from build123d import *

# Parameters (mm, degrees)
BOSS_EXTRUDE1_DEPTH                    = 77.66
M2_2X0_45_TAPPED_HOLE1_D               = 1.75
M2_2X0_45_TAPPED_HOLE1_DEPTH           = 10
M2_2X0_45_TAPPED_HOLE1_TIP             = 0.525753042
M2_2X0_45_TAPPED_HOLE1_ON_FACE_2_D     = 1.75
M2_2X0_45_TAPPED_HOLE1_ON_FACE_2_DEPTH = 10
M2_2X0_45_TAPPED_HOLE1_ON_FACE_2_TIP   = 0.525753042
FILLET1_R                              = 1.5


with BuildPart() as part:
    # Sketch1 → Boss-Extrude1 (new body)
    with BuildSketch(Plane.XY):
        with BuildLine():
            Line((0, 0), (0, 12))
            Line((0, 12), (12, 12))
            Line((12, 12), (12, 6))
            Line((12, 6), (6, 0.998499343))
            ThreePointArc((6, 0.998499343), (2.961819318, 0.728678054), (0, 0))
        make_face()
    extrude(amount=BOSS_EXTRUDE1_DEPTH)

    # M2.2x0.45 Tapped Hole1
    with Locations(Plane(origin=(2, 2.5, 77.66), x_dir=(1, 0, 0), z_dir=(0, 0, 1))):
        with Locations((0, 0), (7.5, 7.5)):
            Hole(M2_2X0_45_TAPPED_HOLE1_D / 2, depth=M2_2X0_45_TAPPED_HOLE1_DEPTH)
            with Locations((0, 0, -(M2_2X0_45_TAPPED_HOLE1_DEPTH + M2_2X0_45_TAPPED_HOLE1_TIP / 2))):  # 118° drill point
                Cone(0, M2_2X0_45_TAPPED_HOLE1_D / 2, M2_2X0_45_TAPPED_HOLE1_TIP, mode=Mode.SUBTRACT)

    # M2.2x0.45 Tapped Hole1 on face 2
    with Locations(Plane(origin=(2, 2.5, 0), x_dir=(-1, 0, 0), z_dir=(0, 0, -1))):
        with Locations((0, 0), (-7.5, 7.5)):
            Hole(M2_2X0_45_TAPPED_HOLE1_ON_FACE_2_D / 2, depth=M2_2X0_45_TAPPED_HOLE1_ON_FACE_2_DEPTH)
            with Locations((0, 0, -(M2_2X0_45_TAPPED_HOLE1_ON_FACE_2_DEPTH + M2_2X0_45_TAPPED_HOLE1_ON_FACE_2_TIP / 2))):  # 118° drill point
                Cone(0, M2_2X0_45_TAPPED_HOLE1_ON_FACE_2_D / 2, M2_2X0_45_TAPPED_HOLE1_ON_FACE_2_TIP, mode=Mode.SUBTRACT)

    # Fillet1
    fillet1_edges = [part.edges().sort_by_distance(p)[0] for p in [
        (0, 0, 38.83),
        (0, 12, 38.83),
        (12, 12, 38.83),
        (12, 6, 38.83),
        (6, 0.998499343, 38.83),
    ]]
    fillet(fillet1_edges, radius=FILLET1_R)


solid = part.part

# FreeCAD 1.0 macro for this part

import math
import FreeCAD as App
import Part
import Sketcher

V = App.Vector


def edges_at(feature, points):
    """Names of the edges that pass closest to the given points."""
    edges = feature.Shape.Edges
    near = lambda p: min(range(len(edges)), key=lambda i: edges[i].distToShape(Part.Vertex(*p))[0])
    return sorted({f"Edge{near(p) + 1}" for p in points})

doc = App.newDocument("Part")
body = doc.addObject("PartDesign::Body", "Body")

# Sketch on XY plane
sketch1 = body.newObject("Sketcher::SketchObject", "Sketch")
sketch1.AttachmentSupport = (doc.getObject("XY_Plane"), [""])
sketch1.MapMode = "FlatFace"
sketch1.addGeometry([
    Part.LineSegment(V(0, 12, 0), V(0, 0, 0)),  # 0
    Part.ArcOfCircle(Part.Circle(V(6, -19, 0), V(0, 0, 1), 20), math.radians(90.7), math.radians(108.19)),  # 1
    Part.LineSegment(V(6, 1, 0), V(12, 6, 0)),  # 2
    Part.LineSegment(V(12, 6, 0), V(12, 12, 0)),  # 3
    Part.LineSegment(V(12, 12, 0), V(0, 12, 0)),  # 4
], False)
sketch1.addConstraint([
    Sketcher.Constraint("Coincident", 0, 2, 1, 2),
    Sketcher.Constraint("Coincident", 1, 1, 2, 1),
    Sketcher.Constraint("Coincident", 2, 2, 3, 1),
    Sketcher.Constraint("Coincident", 3, 2, 4, 1),
    Sketcher.Constraint("Coincident", 4, 2, 0, 1),
    Sketcher.Constraint("Vertical", 0),
    Sketcher.Constraint("Vertical", 3),
    Sketcher.Constraint("Horizontal", 4),
    Sketcher.Constraint("Coincident", 0, 2, -1, 1),
    Sketcher.Constraint("Equal", 4, 0),
    Sketcher.Constraint("Radius", 1, 20.0),
    Sketcher.Constraint("DistanceX", 4, 2, 4, 1, 12.0),
    Sketcher.Constraint("DistanceY", 3, 1, 3, 2, 6.0),
    Sketcher.Constraint("DistanceY", 1, 3, -1, 1, 19.0),
    Sketcher.Constraint("DistanceX", -1, 1, 1, 1, 6.0),
])
pad1 = body.newObject("PartDesign::Pad", "Pad")
pad1.Profile = sketch1
pad1.Length = 77.66

# Sketch on XY plane
sketch2 = body.newObject("Sketcher::SketchObject", "Sketch001")
sketch2.AttachmentSupport = (doc.getObject("XY_Plane"), [""])
sketch2.MapMode = "FlatFace"
sketch2.AttachmentOffset = App.Placement(V(0, 0, 77.66), App.Rotation())
sketch2.addGeometry([
    Part.Circle(V(2, 2.5, 0), V(0, 0, 1), 0.9),
    Part.Circle(V(9.5, 10, 0), V(0, 0, 1), 0.9),
], False)
sketch2.addConstraint([
    Sketcher.Constraint("Equal", 0, 1),
    Sketcher.Constraint("Diameter", 0, 1.75),
    Sketcher.Constraint("DistanceX", -1, 1, 0, 3, 2.0),
    Sketcher.Constraint("DistanceY", -1, 1, 1, 3, 10.0),
    Sketcher.Constraint("DistanceY", -1, 1, 0, 3, 2.5),
    Sketcher.Constraint("DistanceX", -1, 1, 1, 3, 9.5),
])
doc.recompute()
hole = body.newObject("PartDesign::Hole", "Hole")
hole.Profile = sketch2
hole.ThreadType = "None"
hole.Diameter = 1.75
hole.DepthType = "Dimension"
hole.Depth = 10
hole.DrillPoint = "Angled"
hole.DrillPointAngle = 118

# Sketch on XY plane
sketch3 = body.newObject("Sketcher::SketchObject", "Sketch002")
sketch3.AttachmentSupport = (doc.getObject("XY_Plane"), [""])
sketch3.MapMode = "FlatFace"
sketch3.addGeometry([
    Part.Circle(V(2, 2.5, 0), V(0, 0, 1), 0.9),
    Part.Circle(V(9.5, 10, 0), V(0, 0, 1), 0.9),
], False)
sketch3.addConstraint([
    Sketcher.Constraint("Equal", 0, 1),
    Sketcher.Constraint("Diameter", 0, 1.75),
    Sketcher.Constraint("DistanceX", -1, 1, 0, 3, 2.0),
    Sketcher.Constraint("DistanceY", -1, 1, 1, 3, 10.0),
    Sketcher.Constraint("DistanceY", -1, 1, 0, 3, 2.5),
    Sketcher.Constraint("DistanceX", -1, 1, 1, 3, 9.5),
])
doc.recompute()
hole2 = body.newObject("PartDesign::Hole", "Hole001")
hole2.Profile = sketch3
hole2.ThreadType = "None"
hole2.Diameter = 1.75
hole2.DepthType = "Dimension"
hole2.Depth = 10
hole2.DrillPoint = "Angled"
hole2.DrillPointAngle = 118
hole2.Reversed = True
doc.recompute()

fillet = body.newObject("PartDesign::Fillet", "Fillet")
fillet.Base = (hole2, edges_at(hole2, [
    (0, 0, 38.83),
    (0, 12, 38.83),
    (12, 12, 38.83),
    (12, 6, 38.83),
    (6, 0.998, 38.83),
]))
fillet.Radius = 1.5

doc.recompute()
